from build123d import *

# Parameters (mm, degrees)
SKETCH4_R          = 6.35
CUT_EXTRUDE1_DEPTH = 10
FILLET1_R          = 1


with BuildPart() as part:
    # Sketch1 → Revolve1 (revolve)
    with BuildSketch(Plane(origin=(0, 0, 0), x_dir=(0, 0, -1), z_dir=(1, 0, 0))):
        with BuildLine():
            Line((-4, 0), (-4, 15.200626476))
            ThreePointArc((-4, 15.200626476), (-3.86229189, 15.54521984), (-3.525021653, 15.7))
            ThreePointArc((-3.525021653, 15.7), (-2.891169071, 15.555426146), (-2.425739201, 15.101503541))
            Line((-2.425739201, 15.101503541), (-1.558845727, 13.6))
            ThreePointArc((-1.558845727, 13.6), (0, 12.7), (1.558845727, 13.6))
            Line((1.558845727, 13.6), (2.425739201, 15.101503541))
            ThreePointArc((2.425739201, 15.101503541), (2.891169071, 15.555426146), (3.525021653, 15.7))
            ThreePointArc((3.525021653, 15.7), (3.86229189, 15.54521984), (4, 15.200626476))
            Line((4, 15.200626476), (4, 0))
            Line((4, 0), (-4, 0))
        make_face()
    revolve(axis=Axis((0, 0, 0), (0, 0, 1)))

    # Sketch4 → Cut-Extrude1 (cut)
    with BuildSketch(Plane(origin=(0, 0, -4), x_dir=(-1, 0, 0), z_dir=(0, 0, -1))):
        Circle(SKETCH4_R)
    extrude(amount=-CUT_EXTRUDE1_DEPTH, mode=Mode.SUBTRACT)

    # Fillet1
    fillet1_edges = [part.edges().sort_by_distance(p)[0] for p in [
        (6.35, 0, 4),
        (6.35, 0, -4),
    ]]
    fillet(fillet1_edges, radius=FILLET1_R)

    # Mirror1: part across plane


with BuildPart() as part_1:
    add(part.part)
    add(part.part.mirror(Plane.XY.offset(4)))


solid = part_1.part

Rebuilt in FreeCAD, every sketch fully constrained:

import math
import FreeCAD as App
import Part
import Sketcher
Q = App.Units.Quantity


def edges_at(feature, points):
    """Names of the edges that pass closest to the given points."""
    edges = feature.Shape.Edges
    near = lambda p: min(range(len(edges)), key=lambda i: edges[i].distToShape(Part.Vertex(*p))[0])
    return sorted({f"Edge{near(p) + 1}" for p in points})

doc = App.newDocument("Part")
body = doc.addObject("PartDesign::Body", "Body")

sketch1 = doc.addObject("Sketcher::SketchObject", "Sketch")
body.addObject(sketch1)
sketch1.AttachmentSupport = (doc.YZ_Plane, [""])
sketch1.MapMode = "FlatFace"
sketch1.addGeometry([
    Part.LineSegment(App.Vector(15.200626, 4, 0), App.Vector(0, 4, 0)),
    Part.LineSegment(App.Vector(0, 4, 0), App.Vector(0, -4, 0)),
    Part.LineSegment(App.Vector(0, -4, 0), App.Vector(15.200626, -4, 0)),
    Part.ArcOfCircle(Part.Circle(App.Vector(15.200626, -3.5, 0), App.Vector(0, 0, 1), 0.5), math.radians(-90), math.radians(-2.868468)),
    Part.ArcOfCircle(Part.Circle(App.Vector(14.501504, -3.46497, 0), App.Vector(0, 0, 1), 1.2), math.radians(-2.868468), math.radians(60)),
    Part.LineSegment(App.Vector(15.101504, -2.425739, 0), App.Vector(13.6, -1.558846, 0)),
    Part.ArcOfCircle(Part.Circle(App.Vector(14.5, 0, 0), App.Vector(0, 0, 1), 1.8), math.radians(120), math.radians(240)),
    Part.LineSegment(App.Vector(13.6, 1.558846, 0), App.Vector(15.101504, 2.425739, 0)),
    Part.ArcOfCircle(Part.Circle(App.Vector(14.501504, 3.46497, 0), App.Vector(0, 0, 1), 1.2), math.radians(-60), math.radians(2.868468)),
    Part.ArcOfCircle(Part.Circle(App.Vector(15.200626, 3.5, 0), App.Vector(0, 0, 1), 0.5), math.radians(2.868468), math.radians(90)),
], False)
sketch1.addConstraint([
    Sketcher.Constraint("Coincident", 0, 2, 1, 1),
    Sketcher.Constraint("Coincident", 1, 2, 2, 1),
    Sketcher.Constraint("Tangent", 2, 2, 3, 1),
    Sketcher.Constraint("Tangent", 3, 2, 4, 1),
    Sketcher.Constraint("Tangent", 4, 2, 5, 1),
    Sketcher.Constraint("Tangent", 5, 2, 6, 2),
    Sketcher.Constraint("Tangent", 6, 1, 7, 1),
    Sketcher.Constraint("Tangent", 7, 2, 8, 1),
    Sketcher.Constraint("Tangent", 8, 2, 9, 1),
    Sketcher.Constraint("Tangent", 9, 2, 0, 1),
    Sketcher.Constraint("Horizontal", 0),
    Sketcher.Constraint("Vertical", 1),
    Sketcher.Constraint("Horizontal", 2),
    Sketcher.Constraint("Equal", 4, 8),
    Sketcher.Constraint("Equal", 3, 9),
    Sketcher.Constraint("Symmetric", 0, 2, 1, 2, -1, 1),
    Sketcher.Constraint("Symmetric", 4, 3, 8, 3, -1),
    Sketcher.Constraint("PointOnObject", 6, 3, -1),
    Sketcher.Constraint("Radius", 3, Q("0.5 mm")),
    Sketcher.Constraint("Radius", 4, Q("1.2 mm")),
    Sketcher.Constraint("Radius", 6, Q("1.8 mm")),
    Sketcher.Constraint("DistanceY", 1, 2, 1, 1, Q("8 mm")),
    Sketcher.Constraint("Angle", 5, Q("150 deg")),
    Sketcher.Constraint("DistanceX", -1, 1, 6, 3, Q("14.5 mm")),
    Sketcher.Constraint("DistanceX", -1, 1, 3, 2, Q("15.7 mm")),
])
revolution = doc.addObject("PartDesign::Revolution", "Revolution")
body.addObject(revolution)
revolution.Profile = sketch1
revolution.ReferenceAxis = (sketch1, ["V_Axis"])
revolution.Angle = 360

sketch2 = doc.addObject("Sketcher::SketchObject", "Sketch001")
body.addObject(sketch2)
sketch2.AttachmentSupport = (doc.XY_Plane, [""])
sketch2.MapMode = "FlatFace"
sketch2.AttachmentOffset = App.Placement(App.Vector(0, 0, -4), App.Rotation())
sketch2.addGeometry(Part.Circle(App.Vector(0, 0, 0), App.Vector(0, 0, 1), 6.35), False)
sketch2.addConstraint([
    Sketcher.Constraint("Coincident", 0, 3, -1, 1),
    Sketcher.Constraint("Diameter", 0, Q("12.7 mm")),
])
pocket1 = doc.addObject("PartDesign::Pocket", "Pocket")
body.addObject(pocket1)
pocket1.Profile = sketch2
pocket1.Length = 10
pocket1.Reversed = True
doc.recompute()

fillet = doc.addObject("PartDesign::Fillet", "Fillet")
body.addObject(fillet)
fillet.Base = (pocket1, edges_at(pocket1, [(6.35, 0, 4), (6.35, 0, -4)]))
fillet.Radius = 1
body2 = doc.addObject("PartDesign::Body", "Body001")
doc.recompute()

body2.BaseFeature = body
doc.recompute()

mirroring = doc.addObject("Part::Mirroring", "Mirroring")
mirroring.Source = body
mirroring.Base = App.Vector(0, 0, 4)
mirroring.Normal = App.Vector(0, 0, 1)
body3 = doc.addObject("PartDesign::Body", "Body002")
body3.BaseFeature = mirroring
boolean = doc.addObject("PartDesign::Boolean", "Boolean")
body2.addObject(boolean)
boolean.Type = "Fuse"
boolean.addObjects([body3])
doc.recompute()
mirroring.Visibility = False

doc.recompute()
